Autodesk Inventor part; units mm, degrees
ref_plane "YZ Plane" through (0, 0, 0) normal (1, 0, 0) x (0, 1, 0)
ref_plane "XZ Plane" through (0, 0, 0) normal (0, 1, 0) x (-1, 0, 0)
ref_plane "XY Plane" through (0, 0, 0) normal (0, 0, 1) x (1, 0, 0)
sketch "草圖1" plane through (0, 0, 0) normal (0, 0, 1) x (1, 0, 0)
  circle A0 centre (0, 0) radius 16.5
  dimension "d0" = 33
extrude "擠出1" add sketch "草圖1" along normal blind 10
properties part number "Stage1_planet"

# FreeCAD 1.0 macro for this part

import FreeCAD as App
import Part
import Sketcher

V = App.Vector

doc = App.newDocument("Part")
params = doc.addObject("Spreadsheet::Sheet", "Params")
for row, (alias, value) in enumerate([
    ("sketch1_diameter", "33 mm"),
    ("pad1_length", "10 mm"),
], start=1):
    params.set(f"A{row}", alias)
    params.set(f"B{row}", "=" + value)
    params.setAlias(f"B{row}", alias)

body = doc.addObject("PartDesign::Body", "Body")

# Sketch on XY plane
sketch1 = body.newObject("Sketcher::SketchObject", "Sketch")
sketch1.AttachmentSupport = (doc.getObject("XY_Plane"), [""])
sketch1.MapMode = "FlatFace"
sketch1.addGeometry(Part.Circle(V(0, 0, 0), V(0, 0, 1), 16), False)
sketch1.addConstraint(Sketcher.Constraint("Coincident", 0, 3, -1, 1))
sketch1.addConstraint(Sketcher.Constraint("Diameter", 0, 33.0))
sketch1.setExpression("Constraints[1]", "Params.sketch1_diameter")
pad1 = body.newObject("PartDesign::Pad", "Pad")
pad1.Profile = sketch1
pad1.setExpression("Length", "Params.pad1_length")

doc.recompute()
